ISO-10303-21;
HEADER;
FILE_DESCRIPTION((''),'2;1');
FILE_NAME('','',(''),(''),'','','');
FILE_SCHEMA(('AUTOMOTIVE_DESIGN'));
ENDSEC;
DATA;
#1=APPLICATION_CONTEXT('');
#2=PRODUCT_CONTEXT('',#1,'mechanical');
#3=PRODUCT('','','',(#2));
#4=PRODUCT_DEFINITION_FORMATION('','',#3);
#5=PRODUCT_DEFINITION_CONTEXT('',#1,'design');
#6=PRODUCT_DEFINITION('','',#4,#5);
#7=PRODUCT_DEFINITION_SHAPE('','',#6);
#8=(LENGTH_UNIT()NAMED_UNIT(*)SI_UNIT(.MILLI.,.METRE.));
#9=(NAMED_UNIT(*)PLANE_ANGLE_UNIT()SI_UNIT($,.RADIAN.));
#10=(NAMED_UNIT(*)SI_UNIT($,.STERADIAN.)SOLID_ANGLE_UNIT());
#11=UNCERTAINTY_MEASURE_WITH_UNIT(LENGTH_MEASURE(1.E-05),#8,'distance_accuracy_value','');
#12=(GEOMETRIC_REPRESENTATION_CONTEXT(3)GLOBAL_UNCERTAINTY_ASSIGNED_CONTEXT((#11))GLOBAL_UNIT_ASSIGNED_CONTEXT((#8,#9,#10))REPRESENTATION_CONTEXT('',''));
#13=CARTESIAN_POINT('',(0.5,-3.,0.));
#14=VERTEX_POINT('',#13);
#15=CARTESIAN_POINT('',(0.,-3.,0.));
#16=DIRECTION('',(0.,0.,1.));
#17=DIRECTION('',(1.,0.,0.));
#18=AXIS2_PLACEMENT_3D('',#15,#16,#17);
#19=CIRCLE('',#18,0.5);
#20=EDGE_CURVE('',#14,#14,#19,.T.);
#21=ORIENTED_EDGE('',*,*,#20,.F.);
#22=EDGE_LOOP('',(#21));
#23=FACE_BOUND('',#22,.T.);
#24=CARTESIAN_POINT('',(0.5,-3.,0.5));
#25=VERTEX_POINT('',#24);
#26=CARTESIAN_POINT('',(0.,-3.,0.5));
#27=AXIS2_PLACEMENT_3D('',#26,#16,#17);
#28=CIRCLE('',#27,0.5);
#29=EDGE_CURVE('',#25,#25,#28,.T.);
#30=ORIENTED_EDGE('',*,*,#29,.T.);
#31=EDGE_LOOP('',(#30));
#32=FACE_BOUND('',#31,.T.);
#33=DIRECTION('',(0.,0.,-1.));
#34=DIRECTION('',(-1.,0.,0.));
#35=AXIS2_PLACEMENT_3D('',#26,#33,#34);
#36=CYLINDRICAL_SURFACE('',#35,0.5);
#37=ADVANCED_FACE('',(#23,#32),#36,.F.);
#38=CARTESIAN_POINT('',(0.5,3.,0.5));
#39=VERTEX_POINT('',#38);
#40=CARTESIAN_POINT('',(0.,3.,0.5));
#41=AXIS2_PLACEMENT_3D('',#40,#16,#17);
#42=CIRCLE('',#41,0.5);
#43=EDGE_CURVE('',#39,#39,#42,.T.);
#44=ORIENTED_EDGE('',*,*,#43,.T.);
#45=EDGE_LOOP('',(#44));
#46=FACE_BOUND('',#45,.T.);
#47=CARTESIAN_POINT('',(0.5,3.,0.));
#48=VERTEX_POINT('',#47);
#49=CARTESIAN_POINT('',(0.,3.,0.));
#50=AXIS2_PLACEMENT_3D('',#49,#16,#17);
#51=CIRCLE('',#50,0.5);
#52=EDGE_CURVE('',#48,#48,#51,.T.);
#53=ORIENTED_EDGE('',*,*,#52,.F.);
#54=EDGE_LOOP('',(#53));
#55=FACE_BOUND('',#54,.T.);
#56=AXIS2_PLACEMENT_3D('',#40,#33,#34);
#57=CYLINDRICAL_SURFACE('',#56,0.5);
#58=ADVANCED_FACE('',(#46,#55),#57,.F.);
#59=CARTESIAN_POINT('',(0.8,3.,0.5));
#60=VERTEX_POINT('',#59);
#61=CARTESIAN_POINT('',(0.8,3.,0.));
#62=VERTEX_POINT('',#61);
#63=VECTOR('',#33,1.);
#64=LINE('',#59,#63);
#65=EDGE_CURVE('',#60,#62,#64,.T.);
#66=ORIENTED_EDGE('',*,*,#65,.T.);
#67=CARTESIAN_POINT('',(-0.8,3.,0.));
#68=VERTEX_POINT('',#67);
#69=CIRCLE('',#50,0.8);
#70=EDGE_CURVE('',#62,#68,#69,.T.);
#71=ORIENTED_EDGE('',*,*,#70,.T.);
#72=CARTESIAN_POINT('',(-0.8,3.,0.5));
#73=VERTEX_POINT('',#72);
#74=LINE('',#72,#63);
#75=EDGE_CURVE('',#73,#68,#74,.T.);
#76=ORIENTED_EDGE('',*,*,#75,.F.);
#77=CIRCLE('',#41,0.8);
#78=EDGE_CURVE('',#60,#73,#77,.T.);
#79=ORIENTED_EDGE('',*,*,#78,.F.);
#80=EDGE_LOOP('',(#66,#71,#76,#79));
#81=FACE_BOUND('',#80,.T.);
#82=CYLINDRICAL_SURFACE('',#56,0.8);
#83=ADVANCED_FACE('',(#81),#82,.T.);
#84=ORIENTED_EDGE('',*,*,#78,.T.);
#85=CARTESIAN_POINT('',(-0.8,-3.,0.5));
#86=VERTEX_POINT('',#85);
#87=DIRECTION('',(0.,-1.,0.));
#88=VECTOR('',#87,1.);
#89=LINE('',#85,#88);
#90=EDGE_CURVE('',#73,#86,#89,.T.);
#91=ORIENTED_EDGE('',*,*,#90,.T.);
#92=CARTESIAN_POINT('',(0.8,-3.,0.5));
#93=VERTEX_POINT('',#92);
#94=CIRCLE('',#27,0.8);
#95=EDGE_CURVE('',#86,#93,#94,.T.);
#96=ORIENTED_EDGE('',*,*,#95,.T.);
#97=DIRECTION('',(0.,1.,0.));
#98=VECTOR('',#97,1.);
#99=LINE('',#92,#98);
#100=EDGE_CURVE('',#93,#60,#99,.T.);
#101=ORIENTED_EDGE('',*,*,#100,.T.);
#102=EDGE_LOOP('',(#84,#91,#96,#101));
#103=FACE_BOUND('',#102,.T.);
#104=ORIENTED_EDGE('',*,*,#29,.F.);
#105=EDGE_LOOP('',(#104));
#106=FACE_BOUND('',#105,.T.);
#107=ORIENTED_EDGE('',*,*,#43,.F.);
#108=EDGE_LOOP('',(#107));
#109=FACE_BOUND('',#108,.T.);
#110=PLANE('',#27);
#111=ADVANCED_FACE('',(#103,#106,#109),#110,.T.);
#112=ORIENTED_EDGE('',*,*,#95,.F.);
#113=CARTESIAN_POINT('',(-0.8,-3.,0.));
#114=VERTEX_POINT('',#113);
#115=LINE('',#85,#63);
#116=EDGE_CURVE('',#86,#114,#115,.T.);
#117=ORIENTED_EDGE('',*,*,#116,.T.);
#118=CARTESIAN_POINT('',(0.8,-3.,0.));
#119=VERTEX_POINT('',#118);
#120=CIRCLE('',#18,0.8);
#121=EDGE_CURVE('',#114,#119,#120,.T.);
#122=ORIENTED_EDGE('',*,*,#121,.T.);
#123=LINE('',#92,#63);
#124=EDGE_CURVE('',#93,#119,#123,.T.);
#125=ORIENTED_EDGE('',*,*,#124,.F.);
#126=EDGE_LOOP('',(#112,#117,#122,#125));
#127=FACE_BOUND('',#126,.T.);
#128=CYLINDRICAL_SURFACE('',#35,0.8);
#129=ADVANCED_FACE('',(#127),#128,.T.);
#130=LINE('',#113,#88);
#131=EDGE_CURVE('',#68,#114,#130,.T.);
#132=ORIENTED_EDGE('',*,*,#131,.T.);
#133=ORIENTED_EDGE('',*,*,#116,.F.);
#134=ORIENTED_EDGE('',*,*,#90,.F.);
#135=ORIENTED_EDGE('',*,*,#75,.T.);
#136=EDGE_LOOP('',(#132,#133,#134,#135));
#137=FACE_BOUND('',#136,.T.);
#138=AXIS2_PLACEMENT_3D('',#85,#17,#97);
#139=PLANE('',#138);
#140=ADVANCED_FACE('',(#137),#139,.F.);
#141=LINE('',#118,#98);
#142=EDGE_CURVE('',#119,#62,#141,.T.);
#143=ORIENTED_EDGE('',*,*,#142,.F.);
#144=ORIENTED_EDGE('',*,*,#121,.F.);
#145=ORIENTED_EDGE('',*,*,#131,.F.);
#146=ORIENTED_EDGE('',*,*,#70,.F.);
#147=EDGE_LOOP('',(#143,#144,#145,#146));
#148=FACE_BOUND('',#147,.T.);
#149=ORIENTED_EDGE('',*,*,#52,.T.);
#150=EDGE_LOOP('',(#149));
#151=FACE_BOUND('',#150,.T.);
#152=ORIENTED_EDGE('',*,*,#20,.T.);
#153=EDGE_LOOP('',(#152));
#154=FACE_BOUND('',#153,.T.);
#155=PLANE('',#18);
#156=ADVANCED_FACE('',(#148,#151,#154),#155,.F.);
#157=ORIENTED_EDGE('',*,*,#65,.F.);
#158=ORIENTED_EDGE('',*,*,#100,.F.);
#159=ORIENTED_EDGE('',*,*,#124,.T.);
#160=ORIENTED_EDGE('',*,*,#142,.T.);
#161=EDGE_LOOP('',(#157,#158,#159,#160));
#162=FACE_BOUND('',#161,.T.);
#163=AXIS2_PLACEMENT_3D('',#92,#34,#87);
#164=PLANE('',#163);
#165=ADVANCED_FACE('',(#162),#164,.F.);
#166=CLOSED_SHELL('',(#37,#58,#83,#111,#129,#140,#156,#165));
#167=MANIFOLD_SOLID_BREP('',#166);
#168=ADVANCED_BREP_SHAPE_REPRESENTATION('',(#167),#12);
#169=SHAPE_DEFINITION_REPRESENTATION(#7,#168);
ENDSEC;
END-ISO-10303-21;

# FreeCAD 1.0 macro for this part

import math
import FreeCAD as App
import Part
import Sketcher

doc = App.newDocument("Part")
body = doc.addObject("PartDesign::Body", "Body")

# Sketch on XY plane
sketch1 = body.newObject("Sketcher::SketchObject", "Sketch")
sketch1.AttachmentSupport = (doc.getObject("XY_Plane"), [""])
sketch1.MapMode = "FlatFace"
sketch1.addGeometry([
    Part.LineSegment(App.Vector(-0.8, 3, 0), App.Vector(-0.8, -3, 0)),  # 0
    Part.ArcOfCircle(Part.Circle(App.Vector(0, -3, 0), App.Vector(0, 0, 1), 0.8), math.radians(180), math.radians(360)),  # 1
    Part.LineSegment(App.Vector(0.8, -3, 0), App.Vector(0.8, 3, 0)),  # 2
    Part.ArcOfCircle(Part.Circle(App.Vector(0, 3, 0), App.Vector(0, 0, 1), 0.8), math.radians(0), math.radians(180)),  # 3
    Part.Circle(App.Vector(0, -3, 0), App.Vector(0, 0, 1), 0.5),  # 4
    Part.Circle(App.Vector(0, 3, 0), App.Vector(0, 0, 1), 0.5),  # 5
], False)
sketch1.addConstraint([
    Sketcher.Constraint("Tangent", 0, 2, 1, 1),
    Sketcher.Constraint("Tangent", 1, 2, 2, 1),
    Sketcher.Constraint("Tangent", 2, 2, 3, 1),
    Sketcher.Constraint("Tangent", 3, 2, 0, 1),
    Sketcher.Constraint("Vertical", 0),
    Sketcher.Constraint("Vertical", 2),
    Sketcher.Constraint("Coincident", 4, 3, 1, 3),
    Sketcher.Constraint("Coincident", 5, 3, 3, 3),
    Sketcher.Constraint("Equal", 4, 5),
    Sketcher.Constraint("Symmetric", 1, 3, 3, 3, -1, 1),
    Sketcher.Constraint("Diameter", 4, 1.0),
    Sketcher.Constraint("Radius", 1, 0.8),
    Sketcher.Constraint("DistanceY", 0, 2, 0, 1, 6.0),
])
pad1 = body.newObject("PartDesign::Pad", "Pad")
pad1.Profile = sketch1
pad1.Length = 0.5

doc.recompute()
